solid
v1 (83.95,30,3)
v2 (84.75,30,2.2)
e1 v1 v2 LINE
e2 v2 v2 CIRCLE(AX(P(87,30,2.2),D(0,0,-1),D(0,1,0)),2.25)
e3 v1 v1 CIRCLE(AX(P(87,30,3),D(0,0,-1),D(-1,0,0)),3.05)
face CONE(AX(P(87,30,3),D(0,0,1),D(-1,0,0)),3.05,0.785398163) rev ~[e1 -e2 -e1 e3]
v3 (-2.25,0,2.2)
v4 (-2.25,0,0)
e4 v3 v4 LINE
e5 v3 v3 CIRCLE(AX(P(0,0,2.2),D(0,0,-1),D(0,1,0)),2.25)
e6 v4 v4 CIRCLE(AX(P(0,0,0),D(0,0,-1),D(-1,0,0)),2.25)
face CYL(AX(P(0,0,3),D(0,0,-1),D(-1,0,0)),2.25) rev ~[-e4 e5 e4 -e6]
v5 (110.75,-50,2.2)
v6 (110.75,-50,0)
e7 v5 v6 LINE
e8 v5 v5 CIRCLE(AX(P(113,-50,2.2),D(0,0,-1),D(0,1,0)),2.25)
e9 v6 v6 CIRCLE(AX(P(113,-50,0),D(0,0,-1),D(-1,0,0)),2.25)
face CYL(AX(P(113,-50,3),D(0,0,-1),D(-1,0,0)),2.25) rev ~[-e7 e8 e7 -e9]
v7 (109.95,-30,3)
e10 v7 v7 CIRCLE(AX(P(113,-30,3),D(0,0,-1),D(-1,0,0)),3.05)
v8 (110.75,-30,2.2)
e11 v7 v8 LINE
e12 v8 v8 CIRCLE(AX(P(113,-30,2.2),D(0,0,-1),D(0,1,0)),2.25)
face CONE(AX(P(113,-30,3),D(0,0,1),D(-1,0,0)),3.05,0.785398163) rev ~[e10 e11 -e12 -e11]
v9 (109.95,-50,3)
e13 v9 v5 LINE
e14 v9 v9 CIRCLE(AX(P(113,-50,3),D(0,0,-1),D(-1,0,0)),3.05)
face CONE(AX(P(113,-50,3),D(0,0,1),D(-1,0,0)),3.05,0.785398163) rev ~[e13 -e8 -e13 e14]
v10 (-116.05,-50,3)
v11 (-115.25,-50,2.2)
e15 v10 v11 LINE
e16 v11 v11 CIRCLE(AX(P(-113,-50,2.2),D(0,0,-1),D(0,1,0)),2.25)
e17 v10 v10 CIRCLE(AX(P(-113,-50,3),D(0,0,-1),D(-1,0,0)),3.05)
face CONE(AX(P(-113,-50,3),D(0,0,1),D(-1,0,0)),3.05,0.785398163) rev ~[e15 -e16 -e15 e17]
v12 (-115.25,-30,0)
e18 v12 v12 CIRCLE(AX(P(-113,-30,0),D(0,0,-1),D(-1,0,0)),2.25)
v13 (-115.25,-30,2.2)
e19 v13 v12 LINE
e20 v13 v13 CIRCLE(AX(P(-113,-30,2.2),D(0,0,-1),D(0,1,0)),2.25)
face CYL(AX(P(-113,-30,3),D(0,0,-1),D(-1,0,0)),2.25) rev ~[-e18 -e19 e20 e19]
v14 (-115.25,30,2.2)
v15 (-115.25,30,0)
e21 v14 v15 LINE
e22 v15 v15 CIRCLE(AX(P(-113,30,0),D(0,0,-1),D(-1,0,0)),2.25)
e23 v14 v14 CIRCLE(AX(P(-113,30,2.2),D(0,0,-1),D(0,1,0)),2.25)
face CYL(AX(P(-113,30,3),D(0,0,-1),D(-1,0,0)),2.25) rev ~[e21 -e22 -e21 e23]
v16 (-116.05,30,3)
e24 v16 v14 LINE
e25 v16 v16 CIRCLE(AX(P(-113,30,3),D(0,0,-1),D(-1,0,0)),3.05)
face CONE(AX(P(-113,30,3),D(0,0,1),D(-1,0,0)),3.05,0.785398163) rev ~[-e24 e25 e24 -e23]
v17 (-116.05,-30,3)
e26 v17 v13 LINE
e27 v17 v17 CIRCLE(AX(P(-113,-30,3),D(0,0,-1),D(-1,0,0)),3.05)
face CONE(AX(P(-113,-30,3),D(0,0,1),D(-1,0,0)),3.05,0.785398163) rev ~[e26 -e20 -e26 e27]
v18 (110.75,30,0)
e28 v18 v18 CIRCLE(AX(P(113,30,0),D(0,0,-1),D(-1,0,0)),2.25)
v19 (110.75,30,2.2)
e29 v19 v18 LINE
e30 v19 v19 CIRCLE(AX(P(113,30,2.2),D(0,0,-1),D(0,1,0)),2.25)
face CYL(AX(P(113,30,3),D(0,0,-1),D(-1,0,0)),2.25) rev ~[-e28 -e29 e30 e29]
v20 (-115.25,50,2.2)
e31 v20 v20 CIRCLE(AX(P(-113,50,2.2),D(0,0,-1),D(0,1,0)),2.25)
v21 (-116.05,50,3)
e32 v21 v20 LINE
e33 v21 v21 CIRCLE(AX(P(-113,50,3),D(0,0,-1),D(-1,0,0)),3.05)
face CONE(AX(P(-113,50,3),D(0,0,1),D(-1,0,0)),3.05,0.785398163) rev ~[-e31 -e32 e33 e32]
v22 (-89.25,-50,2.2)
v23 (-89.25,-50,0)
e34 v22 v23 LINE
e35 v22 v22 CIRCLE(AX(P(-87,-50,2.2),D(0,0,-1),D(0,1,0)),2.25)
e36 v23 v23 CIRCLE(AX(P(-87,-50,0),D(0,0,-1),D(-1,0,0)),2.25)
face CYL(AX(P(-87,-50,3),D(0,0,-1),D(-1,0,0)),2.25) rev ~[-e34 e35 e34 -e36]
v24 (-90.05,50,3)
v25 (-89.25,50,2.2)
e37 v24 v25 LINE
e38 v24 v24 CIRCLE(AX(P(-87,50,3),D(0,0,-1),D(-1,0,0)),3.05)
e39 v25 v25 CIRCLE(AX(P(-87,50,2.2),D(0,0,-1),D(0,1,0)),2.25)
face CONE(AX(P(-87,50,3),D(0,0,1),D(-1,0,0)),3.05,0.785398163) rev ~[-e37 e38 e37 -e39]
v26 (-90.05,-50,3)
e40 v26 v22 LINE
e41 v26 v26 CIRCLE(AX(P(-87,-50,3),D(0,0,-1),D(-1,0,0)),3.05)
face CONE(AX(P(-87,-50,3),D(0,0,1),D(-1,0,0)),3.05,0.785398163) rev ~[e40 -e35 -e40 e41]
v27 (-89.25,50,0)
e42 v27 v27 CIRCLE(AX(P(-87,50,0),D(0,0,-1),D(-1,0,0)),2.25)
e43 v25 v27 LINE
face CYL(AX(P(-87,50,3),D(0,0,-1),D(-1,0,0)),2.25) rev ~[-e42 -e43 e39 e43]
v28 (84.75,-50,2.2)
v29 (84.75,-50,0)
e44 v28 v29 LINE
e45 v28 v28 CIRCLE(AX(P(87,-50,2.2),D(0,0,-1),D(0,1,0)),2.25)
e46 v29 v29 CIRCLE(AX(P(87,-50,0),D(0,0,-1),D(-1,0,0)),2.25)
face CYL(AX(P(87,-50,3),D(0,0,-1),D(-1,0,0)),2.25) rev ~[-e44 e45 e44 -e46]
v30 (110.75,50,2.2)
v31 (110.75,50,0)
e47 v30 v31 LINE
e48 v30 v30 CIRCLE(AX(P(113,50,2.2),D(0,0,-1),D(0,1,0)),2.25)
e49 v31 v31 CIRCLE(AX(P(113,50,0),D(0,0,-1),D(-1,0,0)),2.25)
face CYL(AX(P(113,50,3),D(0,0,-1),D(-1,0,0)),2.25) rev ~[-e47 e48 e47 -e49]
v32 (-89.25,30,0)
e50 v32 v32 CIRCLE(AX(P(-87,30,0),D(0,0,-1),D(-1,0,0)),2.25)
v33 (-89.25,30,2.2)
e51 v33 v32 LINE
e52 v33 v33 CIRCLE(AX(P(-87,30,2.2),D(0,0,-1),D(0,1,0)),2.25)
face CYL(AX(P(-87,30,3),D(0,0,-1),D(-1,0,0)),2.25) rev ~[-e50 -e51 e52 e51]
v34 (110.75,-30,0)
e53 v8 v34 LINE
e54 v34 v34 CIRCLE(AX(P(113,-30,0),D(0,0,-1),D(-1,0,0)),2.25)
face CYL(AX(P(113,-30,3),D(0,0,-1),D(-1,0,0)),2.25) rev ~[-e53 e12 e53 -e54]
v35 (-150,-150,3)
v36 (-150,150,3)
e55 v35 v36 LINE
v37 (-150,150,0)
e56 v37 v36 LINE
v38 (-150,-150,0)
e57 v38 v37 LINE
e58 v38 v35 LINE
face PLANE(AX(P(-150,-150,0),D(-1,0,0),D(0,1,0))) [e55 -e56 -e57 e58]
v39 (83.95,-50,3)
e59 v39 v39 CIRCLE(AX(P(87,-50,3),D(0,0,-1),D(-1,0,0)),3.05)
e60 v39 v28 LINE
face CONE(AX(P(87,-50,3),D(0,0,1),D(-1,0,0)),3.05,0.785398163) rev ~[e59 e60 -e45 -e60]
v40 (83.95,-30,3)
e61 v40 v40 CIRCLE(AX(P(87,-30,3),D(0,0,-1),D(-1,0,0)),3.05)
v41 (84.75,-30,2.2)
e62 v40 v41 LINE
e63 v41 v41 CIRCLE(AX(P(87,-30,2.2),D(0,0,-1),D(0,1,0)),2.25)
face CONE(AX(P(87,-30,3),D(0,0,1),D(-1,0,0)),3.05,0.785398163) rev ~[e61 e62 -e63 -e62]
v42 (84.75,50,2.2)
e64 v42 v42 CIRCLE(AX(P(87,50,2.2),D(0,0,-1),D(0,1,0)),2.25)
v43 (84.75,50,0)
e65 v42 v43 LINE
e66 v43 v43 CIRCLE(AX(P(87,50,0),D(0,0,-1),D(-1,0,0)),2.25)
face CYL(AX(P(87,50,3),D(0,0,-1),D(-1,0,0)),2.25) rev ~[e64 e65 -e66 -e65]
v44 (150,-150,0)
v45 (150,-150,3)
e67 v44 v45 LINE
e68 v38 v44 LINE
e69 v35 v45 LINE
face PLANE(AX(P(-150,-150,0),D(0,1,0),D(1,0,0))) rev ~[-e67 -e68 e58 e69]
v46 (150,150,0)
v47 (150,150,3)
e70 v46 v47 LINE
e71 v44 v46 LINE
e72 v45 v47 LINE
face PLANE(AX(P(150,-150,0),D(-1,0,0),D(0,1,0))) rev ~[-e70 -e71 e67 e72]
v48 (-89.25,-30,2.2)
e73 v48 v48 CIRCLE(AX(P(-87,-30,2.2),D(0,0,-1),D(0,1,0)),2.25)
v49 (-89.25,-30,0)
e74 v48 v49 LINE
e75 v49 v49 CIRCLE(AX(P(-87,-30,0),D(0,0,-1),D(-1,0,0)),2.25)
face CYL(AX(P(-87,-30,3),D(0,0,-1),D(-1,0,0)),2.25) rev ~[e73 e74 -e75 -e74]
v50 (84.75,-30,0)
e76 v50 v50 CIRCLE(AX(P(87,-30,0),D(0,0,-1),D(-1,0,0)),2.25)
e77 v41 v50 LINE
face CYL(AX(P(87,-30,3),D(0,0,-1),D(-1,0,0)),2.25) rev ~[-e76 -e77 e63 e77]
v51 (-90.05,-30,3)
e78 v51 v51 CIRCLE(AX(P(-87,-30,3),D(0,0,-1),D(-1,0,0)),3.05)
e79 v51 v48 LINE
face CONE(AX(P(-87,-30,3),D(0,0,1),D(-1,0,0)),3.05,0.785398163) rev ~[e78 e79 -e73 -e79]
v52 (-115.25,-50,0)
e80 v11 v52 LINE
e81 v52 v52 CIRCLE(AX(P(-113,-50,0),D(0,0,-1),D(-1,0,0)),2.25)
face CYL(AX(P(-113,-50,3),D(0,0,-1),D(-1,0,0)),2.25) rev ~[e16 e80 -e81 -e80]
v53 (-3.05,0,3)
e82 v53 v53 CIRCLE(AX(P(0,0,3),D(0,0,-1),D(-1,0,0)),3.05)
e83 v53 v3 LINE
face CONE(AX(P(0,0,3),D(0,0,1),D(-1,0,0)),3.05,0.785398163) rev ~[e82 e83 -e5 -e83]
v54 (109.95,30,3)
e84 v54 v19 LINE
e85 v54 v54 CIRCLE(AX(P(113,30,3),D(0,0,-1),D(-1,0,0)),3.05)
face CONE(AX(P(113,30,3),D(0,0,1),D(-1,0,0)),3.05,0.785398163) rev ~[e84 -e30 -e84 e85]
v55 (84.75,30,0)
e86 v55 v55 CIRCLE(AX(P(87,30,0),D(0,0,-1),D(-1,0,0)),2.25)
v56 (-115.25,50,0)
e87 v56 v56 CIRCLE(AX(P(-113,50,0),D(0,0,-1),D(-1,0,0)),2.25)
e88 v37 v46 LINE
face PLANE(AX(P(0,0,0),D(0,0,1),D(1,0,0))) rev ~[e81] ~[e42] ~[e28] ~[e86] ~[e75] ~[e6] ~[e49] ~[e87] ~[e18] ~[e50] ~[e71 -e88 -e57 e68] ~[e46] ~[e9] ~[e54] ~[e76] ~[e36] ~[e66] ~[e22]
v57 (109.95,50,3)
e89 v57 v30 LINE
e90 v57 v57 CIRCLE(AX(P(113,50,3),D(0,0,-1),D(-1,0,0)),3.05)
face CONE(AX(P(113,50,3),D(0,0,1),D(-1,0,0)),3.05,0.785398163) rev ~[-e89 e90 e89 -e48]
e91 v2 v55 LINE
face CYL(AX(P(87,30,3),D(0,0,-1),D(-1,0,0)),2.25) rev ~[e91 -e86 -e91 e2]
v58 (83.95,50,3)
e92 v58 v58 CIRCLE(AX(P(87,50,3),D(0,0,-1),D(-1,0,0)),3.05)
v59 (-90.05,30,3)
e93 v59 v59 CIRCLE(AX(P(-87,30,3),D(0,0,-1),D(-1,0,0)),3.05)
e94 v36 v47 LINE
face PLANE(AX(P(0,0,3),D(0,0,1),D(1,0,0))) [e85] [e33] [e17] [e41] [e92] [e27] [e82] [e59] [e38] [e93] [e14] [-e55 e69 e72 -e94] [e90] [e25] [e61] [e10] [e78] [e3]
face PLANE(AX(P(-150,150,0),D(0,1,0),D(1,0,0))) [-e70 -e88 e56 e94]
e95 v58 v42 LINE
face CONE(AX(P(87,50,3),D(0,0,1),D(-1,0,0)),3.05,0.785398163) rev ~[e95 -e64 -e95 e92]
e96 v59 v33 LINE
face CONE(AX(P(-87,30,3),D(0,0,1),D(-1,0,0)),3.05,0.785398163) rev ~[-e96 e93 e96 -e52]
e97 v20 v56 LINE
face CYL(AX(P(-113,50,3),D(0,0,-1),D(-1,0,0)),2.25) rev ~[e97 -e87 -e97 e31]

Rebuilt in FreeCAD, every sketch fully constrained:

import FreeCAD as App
import Part
import Sketcher
from FreeCAD import Vector

doc = App.newDocument("Part")
params = doc.addObject("Spreadsheet::Sheet", "Params")
for row, (alias, value) in enumerate([
    ("sketch1_width", "300 mm"),
    ("pad1_length", "3 mm"),
    ("sketch2_diameter", "4.5 mm"),
    ("hole_diameter", "4.5 mm"),
    ("hole_depth", "25 mm"),
    ("hole_csink_diameter", "6.1 mm"),
], start=1):
    params.set(f"A{row}", alias)
    params.set(f"B{row}", "=" + value)
    params.setAlias(f"B{row}", alias)

body = doc.addObject("PartDesign::Body", "Body")

# Sketch on XY plane
sketch1 = body.newObject("Sketcher::SketchObject", "Sketch")
sketch1.AttachmentSupport = (doc.getObject("XY_Plane"), [""])
sketch1.MapMode = "FlatFace"
sketch1.addGeometry([
    Part.LineSegment(Vector(-150, 150, 0), Vector(-150, -150, 0)),
    Part.LineSegment(Vector(-150, -150, 0), Vector(150, -150, 0)),
    Part.LineSegment(Vector(150, -150, 0), Vector(150, 150, 0)),
    Part.LineSegment(Vector(150, 150, 0), Vector(-150, 150, 0)),
], False)
sketch1.addConstraint([
    Sketcher.Constraint("Coincident", 0, 2, 1, 1),
    Sketcher.Constraint("Coincident", 1, 2, 2, 1),
    Sketcher.Constraint("Coincident", 2, 2, 3, 1),
    Sketcher.Constraint("Coincident", 3, 2, 0, 1),
    Sketcher.Constraint("Vertical", 0),
    Sketcher.Constraint("Horizontal", 1),
    Sketcher.Constraint("Vertical", 2),
    Sketcher.Constraint("Horizontal", 3),
    Sketcher.Constraint("Symmetric", 0, 2, 2, 2, -1, 1),
    Sketcher.Constraint("Equal", 3, 0),
    Sketcher.Constraint("DistanceX", 1, 1, 1, 2, 300.0),
])
sketch1.setExpression("Constraints[10]", "Params.sketch1_width")
pad1 = body.newObject("PartDesign::Pad", "Pad")
pad1.Profile = sketch1
pad1.setExpression("Length", "Params.pad1_length")

# Sketch on XY plane
sketch2 = body.newObject("Sketcher::SketchObject", "Sketch001")
sketch2.AttachmentSupport = (doc.getObject("XY_Plane"), [""])
sketch2.MapMode = "FlatFace"
sketch2.AttachmentOffset = App.Placement(Vector(0, 0, 3), App.Rotation())
sketch2.addGeometry([
    Part.Circle(Vector(-113, 50, 0), Vector(0, 0, 1), 2.2),  # 0
    Part.Circle(Vector(-87, 50, 0), Vector(0, 0, 1), 2.2),  # 1
    Part.Circle(Vector(-87, 30, 0), Vector(0, 0, 1), 2.2),  # 2
    Part.Circle(Vector(-113, 30, 0), Vector(0, 0, 1), 2.2),  # 3
    Part.Circle(Vector(-113, -30, 0), Vector(0, 0, 1), 2.2),  # 4
    Part.Circle(Vector(-87, -30, 0), Vector(0, 0, 1), 2.2),  # 5
    Part.Circle(Vector(-87, -50, 0), Vector(0, 0, 1), 2.2),  # 6
    Part.Circle(Vector(-113, -50, 0), Vector(0, 0, 1), 2.2),  # 7
    Part.Circle(Vector(87, -30, 0), Vector(0, 0, 1), 2.2),  # 8
    Part.Circle(Vector(113, -30, 0), Vector(0, 0, 1), 2.2),  # 9
    Part.Circle(Vector(113, -50, 0), Vector(0, 0, 1), 2.2),  # 10
    Part.Circle(Vector(87, -50, 0), Vector(0, 0, 1), 2.2),  # 11
    Part.Circle(Vector(87, 30, 0), Vector(0, 0, 1), 2.2),  # 12
    Part.Circle(Vector(87, 50, 0), Vector(0, 0, 1), 2.2),  # 13
    Part.Circle(Vector(113, 50, 0), Vector(0, 0, 1), 2.2),  # 14
    Part.Circle(Vector(113, 30, 0), Vector(0, 0, 1), 2.2),  # 15
    Part.Circle(Vector(0, 0, 0), Vector(0, 0, 1), 2.2),  # 16
], False)
sketch2.addConstraint([
    Sketcher.Constraint("Coincident", 16, 3, -1, 1),
    Sketcher.Constraint("Equal", 0, 1),
    Sketcher.Constraint("Equal", 1, 2),
    Sketcher.Constraint("Equal", 2, 3),
    Sketcher.Constraint("Equal", 3, 4),
    Sketcher.Constraint("Equal", 4, 5),
    Sketcher.Constraint("Equal", 5, 6),
    Sketcher.Constraint("Equal", 6, 7),
    Sketcher.Constraint("Equal", 7, 8),
    Sketcher.Constraint("Equal", 8, 9),
    Sketcher.Constraint("Equal", 9, 10),
    Sketcher.Constraint("Equal", 10, 11),
    Sketcher.Constraint("Equal", 11, 12),
    Sketcher.Constraint("Equal", 12, 13),
    Sketcher.Constraint("Equal", 13, 14),
    Sketcher.Constraint("Equal", 14, 15),
    Sketcher.Constraint("Equal", 15, 16),
    Sketcher.Constraint("Symmetric", 2, 3, 8, 3, -1, 1),
    Sketcher.Constraint("Symmetric", 3, 3, 9, 3, -1, 1),
    Sketcher.Constraint("Symmetric", 0, 3, 10, 3, -1, 1),
    Sketcher.Constraint("Symmetric", 1, 3, 11, 3, -1, 1),
    Sketcher.Constraint("Symmetric", 5, 3, 12, 3, -1, 1),
    Sketcher.Constraint("Symmetric", 6, 3, 13, 3, -1, 1),
    Sketcher.Constraint("Symmetric", 7, 3, 14, 3, -1, 1),
    Sketcher.Constraint("Symmetric", 4, 3, 15, 3, -1, 1),
    Sketcher.Constraint("Symmetric", 5, 3, 8, 3, -2),
    Sketcher.Constraint("Symmetric", 4, 3, 9, 3, -2),
    Sketcher.Constraint("Symmetric", 7, 3, 10, 3, -2),
    Sketcher.Constraint("Symmetric", 6, 3, 11, 3, -2),
    Sketcher.Constraint("Horizontal", 0, 3, 1, 3),
    Sketcher.Constraint("Horizontal", 2, 3, 3, 3),
    Sketcher.Constraint("Vertical", 1, 3, 2, 3),
    Sketcher.Constraint("Vertical", 0, 3, 3, 3),
    Sketcher.Constraint("Diameter", 0, 4.5),
    Sketcher.Constraint("DistanceX", 0, 3, -1, 1, 113.0),
    Sketcher.Constraint("DistanceY", -1, 1, 0, 3, 50.0),
    Sketcher.Constraint("DistanceX", 1, 3, -1, 1, 87.0),
    Sketcher.Constraint("DistanceY", -1, 1, 2, 3, 30.0),
])
sketch2.setExpression("Constraints[33]", "Params.sketch2_diameter")
doc.recompute()
hole = body.newObject("PartDesign::Hole", "Hole")
hole.Profile = sketch2
hole.ThreadType = "None"
hole.setExpression("Diameter", "Params.hole_diameter")
hole.DepthType = "Dimension"
hole.setExpression("Depth", "Params.hole_depth")
hole.DrillPoint = "Flat"
hole.HoleCutType = "Countersink"
hole.setExpression("HoleCutDiameter", "Params.hole_csink_diameter")
hole.HoleCutCountersinkAngle = 90

doc.recompute()
